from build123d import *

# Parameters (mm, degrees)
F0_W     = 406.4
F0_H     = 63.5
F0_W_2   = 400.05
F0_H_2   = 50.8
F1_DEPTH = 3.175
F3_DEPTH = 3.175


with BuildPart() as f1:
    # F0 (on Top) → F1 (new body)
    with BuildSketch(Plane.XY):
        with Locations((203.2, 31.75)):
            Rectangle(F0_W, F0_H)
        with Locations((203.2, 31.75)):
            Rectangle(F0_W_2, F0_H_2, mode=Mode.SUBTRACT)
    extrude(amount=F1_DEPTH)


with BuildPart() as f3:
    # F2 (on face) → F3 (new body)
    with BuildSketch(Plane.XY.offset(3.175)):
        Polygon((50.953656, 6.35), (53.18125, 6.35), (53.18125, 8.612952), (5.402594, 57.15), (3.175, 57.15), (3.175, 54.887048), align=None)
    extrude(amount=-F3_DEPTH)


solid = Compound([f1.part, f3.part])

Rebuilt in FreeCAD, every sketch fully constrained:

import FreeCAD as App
import Part
import Sketcher
Q = App.Units.Quantity

doc = App.newDocument("Part")
body = doc.addObject("PartDesign::Body", "Body")

sketch1 = doc.addObject("Sketcher::SketchObject", "Sketch")
body.addObject(sketch1)
sketch1.AttachmentSupport = (doc.XY_Plane, [""])
sketch1.MapMode = "FlatFace"
sketch1.addGeometry([
    Part.LineSegment(App.Vector(0, 63.5, 0), App.Vector(0, 0, 0)),
    Part.LineSegment(App.Vector(0, 0, 0), App.Vector(406.4, 0, 0)),
    Part.LineSegment(App.Vector(406.4, 0, 0), App.Vector(406.4, 63.5, 0)),
    Part.LineSegment(App.Vector(406.4, 63.5, 0), App.Vector(0, 63.5, 0)),
    Part.LineSegment(App.Vector(403.225, 6.35, 0), App.Vector(3.175, 6.35, 0)),
    Part.LineSegment(App.Vector(3.175, 6.35, 0), App.Vector(3.175, 57.15, 0)),
    Part.LineSegment(App.Vector(3.175, 57.15, 0), App.Vector(403.225, 57.15, 0)),
    Part.LineSegment(App.Vector(403.225, 57.15, 0), App.Vector(403.225, 6.35, 0)),
], False)
sketch1.addConstraint([
    Sketcher.Constraint("Coincident", 0, 2, 1, 1),
    Sketcher.Constraint("Coincident", 1, 2, 2, 1),
    Sketcher.Constraint("Coincident", 2, 2, 3, 1),
    Sketcher.Constraint("Coincident", 3, 2, 0, 1),
    Sketcher.Constraint("Coincident", 4, 2, 5, 1),
    Sketcher.Constraint("Coincident", 5, 2, 6, 1),
    Sketcher.Constraint("Coincident", 6, 2, 7, 1),
    Sketcher.Constraint("Coincident", 7, 2, 4, 1),
    Sketcher.Constraint("Vertical", 0),
    Sketcher.Constraint("Horizontal", 1),
    Sketcher.Constraint("Vertical", 2),
    Sketcher.Constraint("Horizontal", 3),
    Sketcher.Constraint("Horizontal", 4),
    Sketcher.Constraint("Vertical", 5),
    Sketcher.Constraint("Horizontal", 6),
    Sketcher.Constraint("Vertical", 7),
    Sketcher.Constraint("Coincident", 0, 2, -1, 1),
    Sketcher.Constraint("DistanceX", 1, 1, 1, 2, Q("16 in")),
    Sketcher.Constraint("DistanceY", 5, 1, 5, 2, Q("2 in")),
    Sketcher.Constraint("DistanceY", 0, 2, 0, 1, Q("2.5 in")),
    Sketcher.Constraint("DistanceX", 4, 2, 4, 1, Q("15.75 in")),
    Sketcher.Constraint("DistanceY", -1, 1, 4, 2, Q("0.25 in")),
    Sketcher.Constraint("DistanceX", -1, 1, 4, 2, Q("0.125 in")),
])
pad1 = doc.addObject("PartDesign::Pad", "Pad")
body.addObject(pad1)
pad1.Profile = sketch1
pad1.Length = Q("0.125 in")
body2 = doc.addObject("PartDesign::Body", "Body001")

sketch2 = doc.addObject("Sketcher::SketchObject", "Sketch001")
body2.addObject(sketch2)
sketch2.AttachmentSupport = (doc.getObject("XY_Plane001"), [""])
sketch2.MapMode = "FlatFace"
sketch2.AttachmentOffset = App.Placement(App.Vector(0, 0, 0.125 * 25.4), App.Rotation())
sketch2.addGeometry([
    Part.LineSegment(App.Vector(50.953656, 6.35, 0), App.Vector(53.18125, 6.35, 0)),
    Part.LineSegment(App.Vector(53.18125, 6.35, 0), App.Vector(53.18125, 8.612952, 0)),
    Part.LineSegment(App.Vector(53.18125, 8.612952, 0), App.Vector(5.402594, 57.15, 0)),
    Part.LineSegment(App.Vector(5.402594, 57.15, 0), App.Vector(3.175, 57.15, 0)),
    Part.LineSegment(App.Vector(3.175, 57.15, 0), App.Vector(3.175, 54.887048, 0)),
    Part.LineSegment(App.Vector(3.175, 54.887048, 0), App.Vector(50.953656, 6.35, 0)),
], False)
sketch2.addConstraint([
    Sketcher.Constraint("Coincident", 0, 2, 1, 1),
    Sketcher.Constraint("Coincident", 1, 2, 2, 1),
    Sketcher.Constraint("Coincident", 2, 2, 3, 1),
    Sketcher.Constraint("Coincident", 3, 2, 4, 1),
    Sketcher.Constraint("Coincident", 4, 2, 5, 1),
    Sketcher.Constraint("Coincident", 5, 2, 0, 1),
    Sketcher.Constraint("Horizontal", 0),
    Sketcher.Constraint("Vertical", 1),
    Sketcher.Constraint("Horizontal", 3),
    Sketcher.Constraint("Vertical", 4),
    Sketcher.Constraint("Parallel", 2, 5),
    Sketcher.Constraint("Equal", 0, 3),
    Sketcher.Constraint("DistanceY", 0, 2, 2, 2, Q("2 in")),
    Sketcher.Constraint("DistanceY", -1, 1, 0, 2, Q("0.25 in")),
    Sketcher.Constraint("DistanceX", -1, 1, 0, 2, Q("2.09375 in")),
    Sketcher.Constraint("DistanceX", -1, 1, 3, 2, Q("0.125 in")),
    Sketcher.Constraint("Distance", 2, 68.107599),
    Sketcher.Constraint("DistanceY", 4, 2, 4, 1, 2.262952),
])
pad2 = doc.addObject("PartDesign::Pad", "Pad001")
body2.addObject(pad2)
pad2.Profile = sketch2
pad2.Length = Q("0.125 in")
pad2.Reversed = True

doc.recompute()
